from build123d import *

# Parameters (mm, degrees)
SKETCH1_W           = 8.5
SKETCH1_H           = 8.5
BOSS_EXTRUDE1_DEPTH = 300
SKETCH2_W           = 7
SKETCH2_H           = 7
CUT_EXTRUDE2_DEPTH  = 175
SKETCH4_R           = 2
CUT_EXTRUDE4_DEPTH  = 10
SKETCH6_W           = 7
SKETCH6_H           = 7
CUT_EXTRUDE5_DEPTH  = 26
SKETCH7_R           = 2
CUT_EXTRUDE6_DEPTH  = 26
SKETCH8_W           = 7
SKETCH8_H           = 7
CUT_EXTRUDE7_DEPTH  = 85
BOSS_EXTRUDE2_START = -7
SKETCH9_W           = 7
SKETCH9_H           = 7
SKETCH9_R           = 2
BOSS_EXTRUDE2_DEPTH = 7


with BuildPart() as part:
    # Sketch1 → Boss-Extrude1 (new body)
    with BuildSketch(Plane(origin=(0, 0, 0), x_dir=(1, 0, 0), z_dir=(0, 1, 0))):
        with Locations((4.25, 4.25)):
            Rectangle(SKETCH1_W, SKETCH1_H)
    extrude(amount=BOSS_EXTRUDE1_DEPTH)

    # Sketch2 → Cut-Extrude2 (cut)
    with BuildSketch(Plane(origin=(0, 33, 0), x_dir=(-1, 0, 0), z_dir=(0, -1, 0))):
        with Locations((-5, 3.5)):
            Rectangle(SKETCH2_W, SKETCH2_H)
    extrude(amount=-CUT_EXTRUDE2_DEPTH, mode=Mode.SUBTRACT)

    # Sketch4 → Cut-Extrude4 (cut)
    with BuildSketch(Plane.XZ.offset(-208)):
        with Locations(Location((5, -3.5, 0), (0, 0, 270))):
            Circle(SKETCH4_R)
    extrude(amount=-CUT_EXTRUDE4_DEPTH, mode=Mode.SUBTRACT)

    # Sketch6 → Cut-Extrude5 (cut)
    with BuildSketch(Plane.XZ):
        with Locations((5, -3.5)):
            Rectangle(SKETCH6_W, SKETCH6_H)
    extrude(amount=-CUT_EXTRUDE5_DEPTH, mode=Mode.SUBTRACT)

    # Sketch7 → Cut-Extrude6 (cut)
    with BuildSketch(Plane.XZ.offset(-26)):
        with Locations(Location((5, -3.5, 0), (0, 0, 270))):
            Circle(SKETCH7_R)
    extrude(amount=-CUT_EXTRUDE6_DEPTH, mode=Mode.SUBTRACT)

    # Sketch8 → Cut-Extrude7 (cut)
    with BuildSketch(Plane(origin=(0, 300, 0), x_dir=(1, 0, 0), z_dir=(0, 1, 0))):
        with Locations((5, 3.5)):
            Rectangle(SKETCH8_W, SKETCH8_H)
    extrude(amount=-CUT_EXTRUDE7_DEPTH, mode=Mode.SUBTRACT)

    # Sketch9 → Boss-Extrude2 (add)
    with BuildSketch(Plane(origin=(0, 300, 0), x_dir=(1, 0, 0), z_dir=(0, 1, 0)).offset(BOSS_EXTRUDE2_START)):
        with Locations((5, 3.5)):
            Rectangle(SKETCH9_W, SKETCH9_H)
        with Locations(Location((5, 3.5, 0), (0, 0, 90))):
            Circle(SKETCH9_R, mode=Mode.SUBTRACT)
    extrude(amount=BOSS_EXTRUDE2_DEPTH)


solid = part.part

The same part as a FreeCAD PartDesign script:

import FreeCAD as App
import Part
import Sketcher
from FreeCAD import Vector

doc = App.newDocument("Part")
params = doc.addObject("Spreadsheet::Sheet", "Params")
for row, (alias, value) in enumerate([
    ("sketch1_width", "8.5 mm"),
    ("pad1_length", "300 mm"),
    ("sketch2_width", "7 mm"),
    ("pocket1_length", "175 mm"),
    ("sketch3_diameter", "4 mm"),
    ("pocket2_length", "10 mm"),
    ("sketch4_width", "7 mm"),
    ("pocket3_length", "26 mm"),
    ("sketch5_diameter", "4 mm"),
    ("pocket4_length", "26 mm"),
    ("sketch6_width", "7 mm"),
    ("pocket5_length", "85 mm"),
    ("sketch7_diameter", "4 mm"),
    ("sketch7_width", "7 mm"),
    ("pad2_length", "7 mm"),
], start=1):
    params.set(f"A{row}", alias)
    params.set(f"B{row}", "=" + value)
    params.setAlias(f"B{row}", alias)

body = doc.addObject("PartDesign::Body", "Body")

sketch1 = body.newObject("Sketcher::SketchObject", "Sketch")
sketch1.AttachmentSupport = (doc.getObject("XZ_Plane"), [""])
sketch1.MapMode = "FlatFace"
sketch1.addGeometry([
    Part.LineSegment(Vector(0, -8, 0), Vector(0, 0, 0)),
    Part.LineSegment(Vector(0, 0, 0), Vector(8, 0, 0)),
    Part.LineSegment(Vector(8, 0, 0), Vector(8, -8, 0)),
    Part.LineSegment(Vector(8, -8, 0), Vector(0, -8, 0)),
], False)
sketch1.addConstraint([
    Sketcher.Constraint("Coincident", 0, 2, 1, 1),
    Sketcher.Constraint("Coincident", 1, 2, 2, 1),
    Sketcher.Constraint("Coincident", 2, 2, 3, 1),
    Sketcher.Constraint("Coincident", 3, 2, 0, 1),
    Sketcher.Constraint("Vertical", 0),
    Sketcher.Constraint("Horizontal", 1),
    Sketcher.Constraint("Vertical", 2),
    Sketcher.Constraint("Horizontal", 3),
    Sketcher.Constraint("Coincident", 0, 2, -1, 1),
    Sketcher.Constraint("Equal", 3, 0),
    Sketcher.Constraint("DistanceX", 1, 1, 1, 2, 8.5),
])
sketch1.setExpression("Constraints[10]", "Params.sketch1_width")
pad1 = body.newObject("PartDesign::Pad", "Pad")
pad1.Profile = sketch1
pad1.setExpression("Length", "Params.pad1_length")
pad1.Reversed = True

sketch2 = body.newObject("Sketcher::SketchObject", "Sketch001")
sketch2.AttachmentSupport = (doc.getObject("XZ_Plane"), [""])
sketch2.MapMode = "FlatFace"
sketch2.AttachmentOffset = App.Placement(Vector(0, 0, -33), App.Rotation())
sketch2.addGeometry([
    Part.LineSegment(Vector(8, -7, 0), Vector(8, 0, 0)),
    Part.LineSegment(Vector(8, 0, 0), Vector(2, 0, 0)),
    Part.LineSegment(Vector(2, 0, 0), Vector(2, -7, 0)),
    Part.LineSegment(Vector(2, -7, 0), Vector(8, -7, 0)),
], False)
sketch2.addConstraint([
    Sketcher.Constraint("Coincident", 0, 2, 1, 1),
    Sketcher.Constraint("Coincident", 1, 2, 2, 1),
    Sketcher.Constraint("Coincident", 2, 2, 3, 1),
    Sketcher.Constraint("Coincident", 3, 2, 0, 1),
    Sketcher.Constraint("Vertical", 0),
    Sketcher.Constraint("Horizontal", 1),
    Sketcher.Constraint("Vertical", 2),
    Sketcher.Constraint("Horizontal", 3),
    Sketcher.Constraint("PointOnObject", 0, 2, -1),
    Sketcher.Constraint("Equal", 3, 0),
    Sketcher.Constraint("DistanceX", 1, 2, 1, 1, 7.0),
    Sketcher.Constraint("DistanceX", -1, 1, 0, 2, 8.5),
])
sketch2.setExpression("Constraints[10]", "Params.sketch2_width")
pocket1 = body.newObject("PartDesign::Pocket", "Pocket")
pocket1.Profile = sketch2
pocket1.setExpression("Length", "Params.pocket1_length")

sketch3 = body.newObject("Sketcher::SketchObject", "Sketch002")
sketch3.AttachmentSupport = (doc.getObject("XZ_Plane"), [""])
sketch3.MapMode = "FlatFace"
sketch3.AttachmentOffset = App.Placement(Vector(0, 0, -208), App.Rotation())
sketch3.addGeometry(Part.Circle(Vector(5, -3.5, 0), Vector(0, 0, 1), 2), False)
sketch3.addConstraint([
    Sketcher.Constraint("Diameter", 0, 4.0),
    Sketcher.Constraint("DistanceX", -1, 1, 0, 3, 5.0),
    Sketcher.Constraint("DistanceY", 0, 3, -1, 1, 3.5),
])
sketch3.setExpression("Constraints[0]", "Params.sketch3_diameter")
pocket2 = body.newObject("PartDesign::Pocket", "Pocket001")
pocket2.Profile = sketch3
pocket2.setExpression("Length", "Params.pocket2_length")

sketch4 = body.newObject("Sketcher::SketchObject", "Sketch003")
sketch4.AttachmentSupport = (doc.getObject("XZ_Plane"), [""])
sketch4.MapMode = "FlatFace"
sketch4.addGeometry([
    Part.LineSegment(Vector(2, 0, 0), Vector(2, -7, 0)),
    Part.LineSegment(Vector(2, -7, 0), Vector(8, -7, 0)),
    Part.LineSegment(Vector(8, -7, 0), Vector(8, 0, 0)),
    Part.LineSegment(Vector(8, 0, 0), Vector(2, 0, 0)),
], False)
sketch4.addConstraint([
    Sketcher.Constraint("Coincident", 0, 2, 1, 1),
    Sketcher.Constraint("Coincident", 1, 2, 2, 1),
    Sketcher.Constraint("Coincident", 2, 2, 3, 1),
    Sketcher.Constraint("Coincident", 3, 2, 0, 1),
    Sketcher.Constraint("Vertical", 0),
    Sketcher.Constraint("Horizontal", 1),
    Sketcher.Constraint("Vertical", 2),
    Sketcher.Constraint("Horizontal", 3),
    Sketcher.Constraint("PointOnObject", 2, 2, -1),
    Sketcher.Constraint("Equal", 3, 0),
    Sketcher.Constraint("DistanceX", 1, 1, 1, 2, 7.0),
    Sketcher.Constraint("DistanceX", -1, 1, 0, 2, 1.5),
])
sketch4.setExpression("Constraints[10]", "Params.sketch4_width")
pocket3 = body.newObject("PartDesign::Pocket", "Pocket002")
pocket3.Profile = sketch4
pocket3.setExpression("Length", "Params.pocket3_length")

sketch5 = body.newObject("Sketcher::SketchObject", "Sketch004")
sketch5.AttachmentSupport = (doc.getObject("XZ_Plane"), [""])
sketch5.MapMode = "FlatFace"
sketch5.AttachmentOffset = App.Placement(Vector(0, 0, -26), App.Rotation())
sketch5.addGeometry(Part.Circle(Vector(5, -3.5, 0), Vector(0, 0, 1), 2), False)
sketch5.addConstraint([
    Sketcher.Constraint("Diameter", 0, 4.0),
    Sketcher.Constraint("DistanceX", -1, 1, 0, 3, 5.0),
    Sketcher.Constraint("DistanceY", 0, 3, -1, 1, 3.5),
])
sketch5.setExpression("Constraints[0]", "Params.sketch5_diameter")
pocket4 = body.newObject("PartDesign::Pocket", "Pocket003")
pocket4.Profile = sketch5
pocket4.setExpression("Length", "Params.pocket4_length")

sketch6 = body.newObject("Sketcher::SketchObject", "Sketch005")
sketch6.AttachmentSupport = (doc.getObject("XZ_Plane"), [""])
sketch6.MapMode = "FlatFace"
sketch6.AttachmentOffset = App.Placement(Vector(0, 0, -300), App.Rotation())
sketch6.addGeometry([
    Part.LineSegment(Vector(2, -7, 0), Vector(2, 0, 0)),
    Part.LineSegment(Vector(2, 0, 0), Vector(8, 0, 0)),
    Part.LineSegment(Vector(8, 0, 0), Vector(8, -7, 0)),
    Part.LineSegment(Vector(8, -7, 0), Vector(2, -7, 0)),
], False)
sketch6.addConstraint([
    Sketcher.Constraint("Coincident", 0, 2, 1, 1),
    Sketcher.Constraint("Coincident", 1, 2, 2, 1),
    Sketcher.Constraint("Coincident", 2, 2, 3, 1),
    Sketcher.Constraint("Coincident", 3, 2, 0, 1),
    Sketcher.Constraint("Vertical", 0),
    Sketcher.Constraint("Horizontal", 1),
    Sketcher.Constraint("Vertical", 2),
    Sketcher.Constraint("Horizontal", 3),
    Sketcher.Constraint("PointOnObject", 0, 2, -1),
    Sketcher.Constraint("Equal", 3, 0),
    Sketcher.Constraint("DistanceX", 1, 1, 1, 2, 7.0),
    Sketcher.Constraint("DistanceX", -1, 1, 0, 2, 1.5),
])
sketch6.setExpression("Constraints[10]", "Params.sketch6_width")
pocket5 = body.newObject("PartDesign::Pocket", "Pocket004")
pocket5.Profile = sketch6
pocket5.setExpression("Length", "Params.pocket5_length")
pocket5.Reversed = True

sketch7 = body.newObject("Sketcher::SketchObject", "Sketch006")
sketch7.AttachmentSupport = (doc.getObject("XZ_Plane"), [""])
sketch7.MapMode = "FlatFace"
sketch7.AttachmentOffset = App.Placement(Vector(0, 0, -293), App.Rotation())
sketch7.addGeometry([
    Part.LineSegment(Vector(1.5, -7, 0), Vector(1.5, 0, 0)),
    Part.LineSegment(Vector(1.5, 0, 0), Vector(8.5, 0, 0)),
    Part.LineSegment(Vector(8.5, 0, 0), Vector(8.5, -7, 0)),
    Part.LineSegment(Vector(8.5, -7, 0), Vector(1.5, -7, 0)),
    Part.Circle(Vector(5, -3.5, 0), Vector(0, 0, 1), 2),
], False)
sketch7.addConstraint([
    Sketcher.Constraint("Coincident", 0, 2, 1, 1),
    Sketcher.Constraint("Coincident", 1, 2, 2, 1),
    Sketcher.Constraint("Coincident", 2, 2, 3, 1),
    Sketcher.Constraint("Coincident", 3, 2, 0, 1),
    Sketcher.Constraint("Vertical", 0),
    Sketcher.Constraint("Horizontal", 1),
    Sketcher.Constraint("Vertical", 2),
    Sketcher.Constraint("Horizontal", 3),
    Sketcher.Constraint("PointOnObject", 0, 2, -1),
    Sketcher.Constraint("Equal", 3, 0),
    Sketcher.Constraint("Diameter", 4, 4.0),
    Sketcher.Constraint("DistanceX", 1, 1, 1, 2, 7.0),
    Sketcher.Constraint("DistanceX", -1, 1, 4, 3, 5.0),
    Sketcher.Constraint("DistanceY", 4, 3, -1, 1, 3.5),
    Sketcher.Constraint("DistanceX", -1, 1, 0, 2, 1.5),
])
sketch7.setExpression("Constraints[10]", "Params.sketch7_diameter")
sketch7.setExpression("Constraints[11]", "Params.sketch7_width")
pad2 = body.newObject("PartDesign::Pad", "Pad001")
pad2.Profile = sketch7
pad2.setExpression("Length", "Params.pad2_length")
pad2.Reversed = True

doc.recompute()
